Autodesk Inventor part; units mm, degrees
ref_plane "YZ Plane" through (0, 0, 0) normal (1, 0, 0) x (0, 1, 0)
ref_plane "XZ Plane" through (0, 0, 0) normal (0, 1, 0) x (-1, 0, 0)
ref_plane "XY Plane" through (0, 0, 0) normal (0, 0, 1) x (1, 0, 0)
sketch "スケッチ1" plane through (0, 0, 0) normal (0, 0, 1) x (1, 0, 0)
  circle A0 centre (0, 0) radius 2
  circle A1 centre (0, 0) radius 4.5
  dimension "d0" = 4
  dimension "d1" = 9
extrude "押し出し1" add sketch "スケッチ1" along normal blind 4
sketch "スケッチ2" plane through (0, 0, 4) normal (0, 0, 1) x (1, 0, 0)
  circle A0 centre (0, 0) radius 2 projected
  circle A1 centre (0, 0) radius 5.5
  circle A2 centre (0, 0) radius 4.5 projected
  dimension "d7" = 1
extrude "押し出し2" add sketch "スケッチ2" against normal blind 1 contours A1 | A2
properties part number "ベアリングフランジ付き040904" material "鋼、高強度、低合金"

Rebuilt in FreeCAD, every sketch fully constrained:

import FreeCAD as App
import Part
import Sketcher
Q = App.Units.Quantity

doc = App.newDocument("Part")
body = doc.addObject("PartDesign::Body", "Body")

sketch1 = body.newObject("Sketcher::SketchObject", "Sketch")
sketch1.AttachmentSupport = (doc.getObject("XY_Plane"), [""])
sketch1.MapMode = "FlatFace"
sketch1.addGeometry(Part.Circle(App.Vector(0, 0, 0), App.Vector(0, 0, 1), 4.5), False)
sketch1.addGeometry(Part.Circle(App.Vector(0, 0, 0), App.Vector(0, 0, 1), 2), False)
sketch1.addConstraint(Sketcher.Constraint("Coincident", 0, 3, -1, 1))
sketch1.addConstraint(Sketcher.Constraint("Coincident", 1, 3, -1, 1))
sketch1.addConstraint(Sketcher.Constraint("Diameter", 0, Q("9 mm")))
sketch1.addConstraint(Sketcher.Constraint("Diameter", 1, Q("4 mm")))
pad1 = body.newObject("PartDesign::Pad", "Pad")
pad1.Profile = sketch1
pad1.Length = 4

sketch2 = body.newObject("Sketcher::SketchObject", "Sketch001")
sketch2.AttachmentSupport = (doc.getObject("XY_Plane"), [""])
sketch2.MapMode = "FlatFace"
sketch2.AttachmentOffset = App.Placement(App.Vector(0, 0, 4), App.Rotation())
sketch2.addGeometry(Part.Circle(App.Vector(0, 0, 0), App.Vector(0, 0, 1), 5.5), False)
sketch2.addGeometry(Part.Circle(App.Vector(0, 0, 0), App.Vector(0, 0, 1), 2), False)
sketch2.addConstraint(Sketcher.Constraint("Coincident", 0, 3, -1, 1))
sketch2.addConstraint(Sketcher.Constraint("Coincident", 1, 3, -1, 1))
sketch2.addConstraint(Sketcher.Constraint("Diameter", 0, Q("11 mm")))
sketch2.addConstraint(Sketcher.Constraint("Diameter", 1, Q("4 mm")))
pad2 = body.newObject("PartDesign::Pad", "Pad001")
pad2.Profile = sketch2
pad2.Length = 1
pad2.Reversed = True

doc.recompute()
